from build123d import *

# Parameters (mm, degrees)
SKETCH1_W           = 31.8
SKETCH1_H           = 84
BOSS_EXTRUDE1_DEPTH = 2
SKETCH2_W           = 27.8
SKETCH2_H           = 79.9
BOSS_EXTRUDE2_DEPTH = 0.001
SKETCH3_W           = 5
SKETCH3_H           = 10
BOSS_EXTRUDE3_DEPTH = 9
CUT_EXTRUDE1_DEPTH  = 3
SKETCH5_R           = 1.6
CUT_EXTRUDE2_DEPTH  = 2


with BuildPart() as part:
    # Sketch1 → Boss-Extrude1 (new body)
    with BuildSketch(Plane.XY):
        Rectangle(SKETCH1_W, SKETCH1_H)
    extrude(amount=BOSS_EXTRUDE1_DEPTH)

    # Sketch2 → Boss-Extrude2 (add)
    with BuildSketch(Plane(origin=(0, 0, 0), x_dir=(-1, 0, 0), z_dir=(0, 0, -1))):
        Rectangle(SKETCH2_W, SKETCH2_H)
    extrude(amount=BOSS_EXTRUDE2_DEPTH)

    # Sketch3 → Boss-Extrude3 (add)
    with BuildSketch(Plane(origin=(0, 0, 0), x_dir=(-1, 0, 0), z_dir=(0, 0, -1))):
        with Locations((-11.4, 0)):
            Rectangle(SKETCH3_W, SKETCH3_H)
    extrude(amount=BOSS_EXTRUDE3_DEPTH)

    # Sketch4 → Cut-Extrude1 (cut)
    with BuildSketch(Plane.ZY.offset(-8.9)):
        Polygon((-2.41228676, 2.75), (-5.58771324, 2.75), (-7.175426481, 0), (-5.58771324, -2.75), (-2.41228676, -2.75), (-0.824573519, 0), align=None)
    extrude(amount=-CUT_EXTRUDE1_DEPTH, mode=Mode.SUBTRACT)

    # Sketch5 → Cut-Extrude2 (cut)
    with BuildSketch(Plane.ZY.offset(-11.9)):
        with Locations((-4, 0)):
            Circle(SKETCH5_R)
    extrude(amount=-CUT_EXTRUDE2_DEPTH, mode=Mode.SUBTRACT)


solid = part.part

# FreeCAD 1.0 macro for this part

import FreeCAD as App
import Part
import Sketcher

V = App.Vector
Q = App.Units.Quantity


def add_polygon(sketch, points):
    """Adds a closed chain of lines whose ends are joined by coincident constraints."""
    first, n = sketch.GeometryCount, len(points)
    for a, b in zip(points, points[1:] + points[:1]):
        sketch.addGeometry(Part.LineSegment(App.Vector(*a, 0), App.Vector(*b, 0)), False)
    for i in range(n):
        sketch.addConstraint(Sketcher.Constraint("Coincident", first + i, 2, first + (i + 1) % n, 1))

doc = App.newDocument("Part")
body = doc.addObject("PartDesign::Body", "Body")

# Sketch on XY plane
sketch1 = doc.addObject("Sketcher::SketchObject", "Sketch")
body.addObject(sketch1)
sketch1.AttachmentSupport = (doc.XY_Plane, [""])
sketch1.MapMode = "FlatFace"
add_polygon(sketch1, [(-16, 42), (-16, -42), (16, -42), (16, 42)])  # lines 0-3
sketch1.addConstraint([
    Sketcher.Constraint("Vertical", 0),
    Sketcher.Constraint("Horizontal", 1),
    Sketcher.Constraint("Vertical", 2),
    Sketcher.Constraint("Horizontal", 3),
    Sketcher.Constraint("Symmetric", 0, 2, 2, 2, -1, 1),
    Sketcher.Constraint("DistanceY", 0, 2, 0, 1, Q("84 mm")),
    Sketcher.Constraint("DistanceX", 1, 1, 1, 2, Q("31.8 mm")),
])
pad1 = doc.addObject("PartDesign::Pad", "Pad")
body.addObject(pad1)
pad1.Profile = sketch1
pad1.Length = 2

# Sketch on XY plane
sketch2 = doc.addObject("Sketcher::SketchObject", "Sketch001")
body.addObject(sketch2)
sketch2.AttachmentSupport = (doc.XY_Plane, [""])
sketch2.MapMode = "FlatFace"
add_polygon(sketch2, [(14, 40), (14, -40), (-14, -40), (-14, 40)])  # lines 0-3
sketch2.addConstraint([
    Sketcher.Constraint("Vertical", 0),
    Sketcher.Constraint("Horizontal", 1),
    Sketcher.Constraint("Vertical", 2),
    Sketcher.Constraint("Horizontal", 3),
    Sketcher.Constraint("Symmetric", 0, 2, 2, 2, -1, 1),
    Sketcher.Constraint("DistanceX", 1, 2, 1, 1, Q("27.8 mm")),
    Sketcher.Constraint("DistanceY", 0, 2, 0, 1, Q("79.9 mm")),
])
pad2 = doc.addObject("PartDesign::Pad", "Pad001")
body.addObject(pad2)
pad2.Profile = sketch2
pad2.Length = 0.001
pad2.Reversed = True

# Sketch on XY plane
sketch3 = doc.addObject("Sketcher::SketchObject", "Sketch002")
body.addObject(sketch3)
sketch3.AttachmentSupport = (doc.XY_Plane, [""])
sketch3.MapMode = "FlatFace"
add_polygon(sketch3, [(14, 5), (14, -5), (9, -5), (9, 5)])  # lines 0-3
sketch3.addConstraint([
    Sketcher.Constraint("Vertical", 0),
    Sketcher.Constraint("Horizontal", 1),
    Sketcher.Constraint("Vertical", 2),
    Sketcher.Constraint("Horizontal", 3),
    Sketcher.Constraint("DistanceX", 1, 2, 1, 1, Q("5 mm")),
    Sketcher.Constraint("DistanceY", 0, 2, 0, 1, Q("10 mm")),
    Sketcher.Constraint("DistanceY", 0, 2, -1, 1, Q("5 mm")),
    Sketcher.Constraint("DistanceX", -1, 1, 0, 2, Q("13.9 mm")),
])
pad3 = doc.addObject("PartDesign::Pad", "Pad002")
body.addObject(pad3)
pad3.Profile = sketch3
pad3.Length = 9
pad3.Reversed = True

# Sketch on YZ plane
sketch4 = doc.addObject("Sketcher::SketchObject", "Sketch003")
body.addObject(sketch4)
sketch4.AttachmentSupport = (doc.YZ_Plane, [""])
sketch4.MapMode = "FlatFace"
sketch4.AttachmentOffset = App.Placement(V(0, 0, 8.9), App.Rotation())
add_polygon(sketch4, [(2.8, -2.4), (2.8, -5.6), (0, -7.2), (-2.8, -5.6), (-2.8, -2.4), (0, -0.8)])  # lines 0-5
sketch4.addConstraint([
    Sketcher.Constraint("Vertical", 0),
    Sketcher.Constraint("Vertical", 3),
    Sketcher.Constraint("Symmetric", 0, 2, 2, 2, -2),
    Sketcher.Constraint("PointOnObject", 1, 2, -2),
    Sketcher.Constraint("PointOnObject", 4, 2, -2),
    Sketcher.Constraint("Parallel", 1, 4),
    Sketcher.Constraint("Parallel", 2, 5),
    Sketcher.Constraint("Angle", 1, Q("-150 deg")),
    Sketcher.Constraint("DistanceX", 2, 2, 0, 2, Q("5.5 mm")),
    Sketcher.Constraint("DistanceY", 0, 2, 0, 1, Q("3.175426 mm")),
    Sketcher.Constraint("DistanceY", 0, 2, -1, 1, Q("5.587713 mm")),
])
pocket1 = doc.addObject("PartDesign::Pocket", "Pocket")
body.addObject(pocket1)
pocket1.Profile = sketch4
pocket1.Length = 3
pocket1.Reversed = True

# Sketch on YZ plane
sketch5 = doc.addObject("Sketcher::SketchObject", "Sketch004")
body.addObject(sketch5)
sketch5.AttachmentSupport = (doc.YZ_Plane, [""])
sketch5.MapMode = "FlatFace"
sketch5.AttachmentOffset = App.Placement(V(0, 0, 11.9), App.Rotation())
sketch5.addGeometry(Part.Circle(V(0, -4, 0), V(0, 0, 1), 1.6), False)
sketch5.addConstraint([
    Sketcher.Constraint("PointOnObject", 0, 3, -2),
    Sketcher.Constraint("Diameter", 0, Q("3.2 mm")),
    Sketcher.Constraint("DistanceY", 0, 3, -1, 1, Q("4 mm")),
])
pocket2 = doc.addObject("PartDesign::Pocket", "Pocket001")
body.addObject(pocket2)
pocket2.Profile = sketch5
pocket2.Length = 2
pocket2.Reversed = True

doc.recompute()
